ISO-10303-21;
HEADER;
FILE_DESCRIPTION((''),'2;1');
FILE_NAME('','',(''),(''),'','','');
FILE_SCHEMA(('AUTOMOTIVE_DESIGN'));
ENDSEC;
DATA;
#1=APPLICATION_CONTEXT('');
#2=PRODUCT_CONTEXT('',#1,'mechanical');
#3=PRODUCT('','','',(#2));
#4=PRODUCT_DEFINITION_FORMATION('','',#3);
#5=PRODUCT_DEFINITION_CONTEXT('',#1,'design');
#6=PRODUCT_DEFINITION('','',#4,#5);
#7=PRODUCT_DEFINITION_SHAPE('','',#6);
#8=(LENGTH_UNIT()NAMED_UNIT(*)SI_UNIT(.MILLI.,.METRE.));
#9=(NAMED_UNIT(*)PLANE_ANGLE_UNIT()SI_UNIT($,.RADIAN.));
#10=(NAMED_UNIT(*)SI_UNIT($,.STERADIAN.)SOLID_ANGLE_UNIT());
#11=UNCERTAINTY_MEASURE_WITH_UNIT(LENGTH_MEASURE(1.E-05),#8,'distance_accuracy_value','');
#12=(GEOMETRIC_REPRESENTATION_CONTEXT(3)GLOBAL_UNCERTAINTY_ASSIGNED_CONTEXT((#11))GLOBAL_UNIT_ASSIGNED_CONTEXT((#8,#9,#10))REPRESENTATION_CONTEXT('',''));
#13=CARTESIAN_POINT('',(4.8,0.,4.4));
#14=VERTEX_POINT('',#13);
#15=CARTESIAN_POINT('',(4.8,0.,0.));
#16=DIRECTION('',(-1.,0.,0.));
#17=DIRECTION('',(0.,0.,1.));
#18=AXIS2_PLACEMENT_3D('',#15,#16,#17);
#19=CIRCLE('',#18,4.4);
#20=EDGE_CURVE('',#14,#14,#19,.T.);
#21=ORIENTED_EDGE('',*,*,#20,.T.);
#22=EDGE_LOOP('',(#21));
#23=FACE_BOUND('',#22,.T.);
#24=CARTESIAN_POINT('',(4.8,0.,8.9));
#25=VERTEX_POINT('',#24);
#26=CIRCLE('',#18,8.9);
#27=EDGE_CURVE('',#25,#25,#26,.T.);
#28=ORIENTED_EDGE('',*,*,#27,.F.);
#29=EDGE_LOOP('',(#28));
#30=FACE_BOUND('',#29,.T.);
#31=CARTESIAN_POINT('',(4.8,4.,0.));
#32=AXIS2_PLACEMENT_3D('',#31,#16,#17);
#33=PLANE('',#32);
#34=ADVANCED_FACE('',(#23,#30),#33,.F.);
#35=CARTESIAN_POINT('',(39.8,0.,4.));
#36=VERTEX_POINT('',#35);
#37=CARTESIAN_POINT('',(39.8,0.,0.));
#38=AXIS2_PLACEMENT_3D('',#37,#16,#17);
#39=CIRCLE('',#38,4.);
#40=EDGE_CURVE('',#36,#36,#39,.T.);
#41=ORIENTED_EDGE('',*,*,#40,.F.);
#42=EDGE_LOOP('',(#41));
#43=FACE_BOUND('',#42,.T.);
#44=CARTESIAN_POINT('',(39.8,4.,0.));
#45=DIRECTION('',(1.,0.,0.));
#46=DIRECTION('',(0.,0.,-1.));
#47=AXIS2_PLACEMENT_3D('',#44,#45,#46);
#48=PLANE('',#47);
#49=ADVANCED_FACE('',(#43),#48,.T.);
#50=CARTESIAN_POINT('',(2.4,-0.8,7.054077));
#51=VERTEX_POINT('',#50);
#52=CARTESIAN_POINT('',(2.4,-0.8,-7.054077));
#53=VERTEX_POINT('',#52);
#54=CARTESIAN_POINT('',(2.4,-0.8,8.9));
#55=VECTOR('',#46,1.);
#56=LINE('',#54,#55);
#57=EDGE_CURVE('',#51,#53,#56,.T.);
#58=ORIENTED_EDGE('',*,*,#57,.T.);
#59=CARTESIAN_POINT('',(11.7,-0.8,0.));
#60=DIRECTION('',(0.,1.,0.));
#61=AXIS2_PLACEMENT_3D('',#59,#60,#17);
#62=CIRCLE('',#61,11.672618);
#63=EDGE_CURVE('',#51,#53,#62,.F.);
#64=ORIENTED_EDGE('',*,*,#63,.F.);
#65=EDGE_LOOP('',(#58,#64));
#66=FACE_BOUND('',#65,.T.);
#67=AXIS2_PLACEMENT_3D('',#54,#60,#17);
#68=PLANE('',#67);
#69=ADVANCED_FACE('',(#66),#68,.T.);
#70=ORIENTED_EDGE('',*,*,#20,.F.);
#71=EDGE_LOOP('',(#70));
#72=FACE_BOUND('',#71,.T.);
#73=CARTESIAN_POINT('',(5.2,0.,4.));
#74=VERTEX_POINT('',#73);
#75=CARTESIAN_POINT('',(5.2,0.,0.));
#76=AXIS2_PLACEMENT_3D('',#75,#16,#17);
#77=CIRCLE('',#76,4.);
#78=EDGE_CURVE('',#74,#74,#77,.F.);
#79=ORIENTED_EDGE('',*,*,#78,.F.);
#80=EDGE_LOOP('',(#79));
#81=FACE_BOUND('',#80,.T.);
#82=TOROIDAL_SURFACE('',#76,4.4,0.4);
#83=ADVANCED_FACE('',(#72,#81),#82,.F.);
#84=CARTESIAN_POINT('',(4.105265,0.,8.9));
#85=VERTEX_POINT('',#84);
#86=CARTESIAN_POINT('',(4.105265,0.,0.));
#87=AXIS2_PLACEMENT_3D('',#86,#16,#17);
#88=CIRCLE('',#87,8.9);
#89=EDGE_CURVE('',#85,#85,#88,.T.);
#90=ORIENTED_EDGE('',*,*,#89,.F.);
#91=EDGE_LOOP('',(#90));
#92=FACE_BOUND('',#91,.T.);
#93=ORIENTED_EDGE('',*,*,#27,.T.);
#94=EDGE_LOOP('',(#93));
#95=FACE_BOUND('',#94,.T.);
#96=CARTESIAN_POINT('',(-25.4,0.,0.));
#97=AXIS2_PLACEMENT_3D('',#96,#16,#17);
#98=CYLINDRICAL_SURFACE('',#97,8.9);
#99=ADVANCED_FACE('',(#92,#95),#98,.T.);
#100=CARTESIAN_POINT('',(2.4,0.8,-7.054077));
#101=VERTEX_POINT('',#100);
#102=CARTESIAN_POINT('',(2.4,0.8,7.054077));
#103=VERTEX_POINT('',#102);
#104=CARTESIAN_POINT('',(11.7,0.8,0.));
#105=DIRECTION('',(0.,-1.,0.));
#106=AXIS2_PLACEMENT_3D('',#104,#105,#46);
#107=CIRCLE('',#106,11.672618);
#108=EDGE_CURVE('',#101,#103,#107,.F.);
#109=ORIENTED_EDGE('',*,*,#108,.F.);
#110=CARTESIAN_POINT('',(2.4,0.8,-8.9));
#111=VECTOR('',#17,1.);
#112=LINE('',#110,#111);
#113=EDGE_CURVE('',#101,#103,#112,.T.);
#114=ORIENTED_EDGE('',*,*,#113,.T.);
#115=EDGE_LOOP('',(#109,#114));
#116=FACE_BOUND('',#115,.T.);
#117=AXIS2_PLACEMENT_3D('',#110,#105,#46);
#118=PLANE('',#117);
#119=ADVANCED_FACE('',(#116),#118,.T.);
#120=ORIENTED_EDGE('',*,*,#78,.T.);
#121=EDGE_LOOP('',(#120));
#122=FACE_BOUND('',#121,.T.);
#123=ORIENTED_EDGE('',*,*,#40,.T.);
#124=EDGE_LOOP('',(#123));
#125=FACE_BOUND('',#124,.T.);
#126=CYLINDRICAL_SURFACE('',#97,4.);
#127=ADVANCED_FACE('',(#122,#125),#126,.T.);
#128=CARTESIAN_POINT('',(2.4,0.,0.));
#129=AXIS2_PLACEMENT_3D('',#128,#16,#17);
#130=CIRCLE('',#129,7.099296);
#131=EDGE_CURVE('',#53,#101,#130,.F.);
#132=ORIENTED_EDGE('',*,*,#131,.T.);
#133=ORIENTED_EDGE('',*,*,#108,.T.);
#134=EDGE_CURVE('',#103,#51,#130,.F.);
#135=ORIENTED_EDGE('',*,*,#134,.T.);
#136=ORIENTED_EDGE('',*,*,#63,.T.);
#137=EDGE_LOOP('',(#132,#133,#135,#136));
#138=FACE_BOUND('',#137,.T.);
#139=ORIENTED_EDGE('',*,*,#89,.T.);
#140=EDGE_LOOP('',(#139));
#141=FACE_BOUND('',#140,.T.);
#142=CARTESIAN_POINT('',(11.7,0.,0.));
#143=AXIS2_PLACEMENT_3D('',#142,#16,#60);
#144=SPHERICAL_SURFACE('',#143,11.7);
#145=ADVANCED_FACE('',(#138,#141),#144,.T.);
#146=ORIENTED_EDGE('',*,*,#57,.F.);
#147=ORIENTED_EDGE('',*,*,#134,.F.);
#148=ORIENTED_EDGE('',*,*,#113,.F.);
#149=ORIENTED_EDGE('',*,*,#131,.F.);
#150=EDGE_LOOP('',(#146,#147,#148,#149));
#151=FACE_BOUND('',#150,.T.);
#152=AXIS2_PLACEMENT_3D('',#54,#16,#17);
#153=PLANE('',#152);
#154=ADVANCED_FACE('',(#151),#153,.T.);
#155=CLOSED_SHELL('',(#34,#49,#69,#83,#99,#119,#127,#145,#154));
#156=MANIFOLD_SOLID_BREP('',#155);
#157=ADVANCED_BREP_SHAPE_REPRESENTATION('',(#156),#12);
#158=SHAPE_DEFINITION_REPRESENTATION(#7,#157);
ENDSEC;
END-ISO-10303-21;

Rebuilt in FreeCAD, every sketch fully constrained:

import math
import FreeCAD as App
import Part
import Sketcher
Q = App.Units.Quantity


def edges_at(feature, points):
    """Names of the edges that pass closest to the given points."""
    edges = feature.Shape.Edges
    near = lambda p: min(range(len(edges)), key=lambda i: edges[i].distToShape(Part.Vertex(*p))[0])
    return sorted({f"Edge{near(p) + 1}" for p in points})


def add_polygon(sketch, points):
    """Adds a closed chain of lines whose ends are joined by coincident constraints."""
    first, n = sketch.GeometryCount, len(points)
    for a, b in zip(points, points[1:] + points[:1]):
        sketch.addGeometry(Part.LineSegment(App.Vector(*a, 0), App.Vector(*b, 0)), False)
    for i in range(n):
        sketch.addConstraint(Sketcher.Constraint("Coincident", first + i, 2, first + (i + 1) % n, 1))

doc = App.newDocument("Part")
params = doc.addObject("Spreadsheet::Sheet", "Params")
for row, (alias, value) in enumerate([
    ("sketch1_radius", "11.7 mm"),
    ("sketch1_width", "35 mm"),
    ("sketch1_height", "4 mm"),
    ("sketch1_width2", "39.8 mm"),
    ("sketch1_height2", "4.9 mm"),
    ("revolution_angle", "360 deg"),
    ("fillet_radius", "0.4 mm"),
    ("sketch2_width", "1.6 mm"),
    ("sketch2_height", "17.8 mm"),
    ("pocket1_length", "2.4 mm"),
], start=1):
    params.set(f"A{row}", alias)
    params.set(f"B{row}", "=" + value)
    params.setAlias(f"B{row}", alias)

body = doc.addObject("PartDesign::Body", "Body")

sketch1 = doc.addObject("Sketcher::SketchObject", "Sketch")
body.addObject(sketch1)
sketch1.AttachmentSupport = (doc.XY_Plane, [""])
sketch1.MapMode = "FlatFace"
sketch1.addGeometry(Part.LineSegment(App.Vector(4.8, 4, 0), App.Vector(4.8, 8.9, 0)), False)
sketch1.addGeometry(Part.LineSegment(App.Vector(4.8, 8.9, 0), App.Vector(4.105265, 8.9, 0)), False)
sketch1.addGeometry(Part.ArcOfCircle(Part.Circle(App.Vector(11.7, 0, 0), App.Vector(0, 0, 1), 11.7), math.radians(130.475486), math.radians(180)), False)
sketch1.addGeometry(Part.LineSegment(App.Vector(0, 0, 0), App.Vector(39.8, 0, 0)), False)
sketch1.addGeometry(Part.LineSegment(App.Vector(39.8, 0, 0), App.Vector(39.8, 4, 0)), False)
sketch1.addGeometry(Part.LineSegment(App.Vector(39.8, 4, 0), App.Vector(4.8, 4, 0)), False)
sketch1.addConstraint(Sketcher.Constraint("Coincident", 0, 2, 1, 1))
sketch1.addConstraint(Sketcher.Constraint("Coincident", 1, 2, 2, 1))
sketch1.addConstraint(Sketcher.Constraint("Coincident", 2, 2, 3, 1))
sketch1.addConstraint(Sketcher.Constraint("Coincident", 3, 2, 4, 1))
sketch1.addConstraint(Sketcher.Constraint("Coincident", 4, 2, 5, 1))
sketch1.addConstraint(Sketcher.Constraint("Coincident", 5, 2, 0, 1))
sketch1.addConstraint(Sketcher.Constraint("Vertical", 0))
sketch1.addConstraint(Sketcher.Constraint("Horizontal", 1))
sketch1.addConstraint(Sketcher.Constraint("Horizontal", 3))
sketch1.addConstraint(Sketcher.Constraint("Vertical", 4))
sketch1.addConstraint(Sketcher.Constraint("Horizontal", 5))
sketch1.addConstraint(Sketcher.Constraint("Coincident", 2, 2, -1, 1))
sketch1.addConstraint(Sketcher.Constraint("PointOnObject", 2, 3, -1))
sketch1.addConstraint(Sketcher.Constraint("Radius", 2, Q("11.7 mm")))
sketch1.addConstraint(Sketcher.Constraint("DistanceX", 5, 2, 5, 1, Q("35 mm")))
sketch1.addConstraint(Sketcher.Constraint("DistanceY", 4, 1, 4, 2, Q("4 mm")))
sketch1.addConstraint(Sketcher.Constraint("DistanceX", 3, 1, 3, 2, Q("39.8 mm")))
sketch1.addConstraint(Sketcher.Constraint("DistanceY", 0, 1, 0, 2, Q("4.9 mm")))
sketch1.setExpression("Constraints[13]", "Params.sketch1_radius")
sketch1.setExpression("Constraints[14]", "Params.sketch1_width")
sketch1.setExpression("Constraints[15]", "Params.sketch1_height")
sketch1.setExpression("Constraints[16]", "Params.sketch1_width2")
sketch1.setExpression("Constraints[17]", "Params.sketch1_height2")
revolution = doc.addObject("PartDesign::Revolution", "Revolution")
body.addObject(revolution)
revolution.Profile = sketch1
revolution.ReferenceAxis = (sketch1, ["H_Axis"])
revolution.setExpression("Angle", "Params.revolution_angle")
doc.recompute()

fillet = doc.addObject("PartDesign::Fillet", "Fillet")
body.addObject(fillet)
fillet.Base = (revolution, edges_at(revolution, [(4.8, 0, -4)]))
fillet.setExpression("Radius", "Params.fillet_radius")

sketch2 = doc.addObject("Sketcher::SketchObject", "Sketch001")
body.addObject(sketch2)
sketch2.AttachmentSupport = (doc.YZ_Plane, [""])
sketch2.MapMode = "FlatFace"
add_polygon(sketch2, [(0.8, 8.9), (-0.8, 8.9), (-0.8, -8.9), (0.8, -8.9)])
sketch2.addConstraint(Sketcher.Constraint("Horizontal", 0))
sketch2.addConstraint(Sketcher.Constraint("Vertical", 1))
sketch2.addConstraint(Sketcher.Constraint("Horizontal", 2))
sketch2.addConstraint(Sketcher.Constraint("Vertical", 3))
sketch2.addConstraint(Sketcher.Constraint("Symmetric", 0, 2, 2, 2, -1, 1))
sketch2.addConstraint(Sketcher.Constraint("DistanceX", 0, 2, 0, 1, Q("1.6 mm")))
sketch2.addConstraint(Sketcher.Constraint("DistanceY", 1, 2, 1, 1, Q("17.8 mm")))
sketch2.setExpression("Constraints[9]", "Params.sketch2_width")
sketch2.setExpression("Constraints[10]", "Params.sketch2_height")
pocket1 = doc.addObject("PartDesign::Pocket", "Pocket")
body.addObject(pocket1)
pocket1.Profile = sketch2
pocket1.setExpression("Length", "Params.pocket1_length")
pocket1.Reversed = True

doc.recompute()
